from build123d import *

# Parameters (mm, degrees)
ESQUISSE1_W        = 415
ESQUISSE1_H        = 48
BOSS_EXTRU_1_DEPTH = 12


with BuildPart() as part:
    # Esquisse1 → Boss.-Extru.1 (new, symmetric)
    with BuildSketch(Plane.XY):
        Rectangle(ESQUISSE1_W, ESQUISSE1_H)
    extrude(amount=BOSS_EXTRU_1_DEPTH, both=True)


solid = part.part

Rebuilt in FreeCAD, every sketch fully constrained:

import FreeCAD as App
import Part
import Sketcher
Q = App.Units.Quantity

doc = App.newDocument("Part")
body = doc.addObject("PartDesign::Body", "Body")

# Sketch on XY plane
sketch1 = body.newObject("Sketcher::SketchObject", "Sketch")
sketch1.AttachmentSupport = (doc.getObject("XY_Plane"), [""])
sketch1.MapMode = "FlatFace"
sketch1.addGeometry([
    Part.LineSegment(App.Vector(-208, 24, 0), App.Vector(-208, -24, 0)),
    Part.LineSegment(App.Vector(-208, -24, 0), App.Vector(208, -24, 0)),
    Part.LineSegment(App.Vector(208, -24, 0), App.Vector(208, 24, 0)),
    Part.LineSegment(App.Vector(208, 24, 0), App.Vector(-208, 24, 0)),
], False)
sketch1.addConstraint([
    Sketcher.Constraint("Coincident", 0, 2, 1, 1),
    Sketcher.Constraint("Coincident", 1, 2, 2, 1),
    Sketcher.Constraint("Coincident", 2, 2, 3, 1),
    Sketcher.Constraint("Coincident", 3, 2, 0, 1),
    Sketcher.Constraint("Vertical", 0),
    Sketcher.Constraint("Horizontal", 1),
    Sketcher.Constraint("Vertical", 2),
    Sketcher.Constraint("Horizontal", 3),
    Sketcher.Constraint("Symmetric", 0, 2, 2, 2, -1, 1),
    Sketcher.Constraint("DistanceX", 1, 1, 1, 2, Q("415 mm")),
    Sketcher.Constraint("DistanceY", 0, 2, 0, 1, Q("48 mm")),
])
pad1 = body.newObject("PartDesign::Pad", "Pad")
pad1.Profile = sketch1
pad1.Length = 24
pad1.Midplane = True

doc.recompute()
